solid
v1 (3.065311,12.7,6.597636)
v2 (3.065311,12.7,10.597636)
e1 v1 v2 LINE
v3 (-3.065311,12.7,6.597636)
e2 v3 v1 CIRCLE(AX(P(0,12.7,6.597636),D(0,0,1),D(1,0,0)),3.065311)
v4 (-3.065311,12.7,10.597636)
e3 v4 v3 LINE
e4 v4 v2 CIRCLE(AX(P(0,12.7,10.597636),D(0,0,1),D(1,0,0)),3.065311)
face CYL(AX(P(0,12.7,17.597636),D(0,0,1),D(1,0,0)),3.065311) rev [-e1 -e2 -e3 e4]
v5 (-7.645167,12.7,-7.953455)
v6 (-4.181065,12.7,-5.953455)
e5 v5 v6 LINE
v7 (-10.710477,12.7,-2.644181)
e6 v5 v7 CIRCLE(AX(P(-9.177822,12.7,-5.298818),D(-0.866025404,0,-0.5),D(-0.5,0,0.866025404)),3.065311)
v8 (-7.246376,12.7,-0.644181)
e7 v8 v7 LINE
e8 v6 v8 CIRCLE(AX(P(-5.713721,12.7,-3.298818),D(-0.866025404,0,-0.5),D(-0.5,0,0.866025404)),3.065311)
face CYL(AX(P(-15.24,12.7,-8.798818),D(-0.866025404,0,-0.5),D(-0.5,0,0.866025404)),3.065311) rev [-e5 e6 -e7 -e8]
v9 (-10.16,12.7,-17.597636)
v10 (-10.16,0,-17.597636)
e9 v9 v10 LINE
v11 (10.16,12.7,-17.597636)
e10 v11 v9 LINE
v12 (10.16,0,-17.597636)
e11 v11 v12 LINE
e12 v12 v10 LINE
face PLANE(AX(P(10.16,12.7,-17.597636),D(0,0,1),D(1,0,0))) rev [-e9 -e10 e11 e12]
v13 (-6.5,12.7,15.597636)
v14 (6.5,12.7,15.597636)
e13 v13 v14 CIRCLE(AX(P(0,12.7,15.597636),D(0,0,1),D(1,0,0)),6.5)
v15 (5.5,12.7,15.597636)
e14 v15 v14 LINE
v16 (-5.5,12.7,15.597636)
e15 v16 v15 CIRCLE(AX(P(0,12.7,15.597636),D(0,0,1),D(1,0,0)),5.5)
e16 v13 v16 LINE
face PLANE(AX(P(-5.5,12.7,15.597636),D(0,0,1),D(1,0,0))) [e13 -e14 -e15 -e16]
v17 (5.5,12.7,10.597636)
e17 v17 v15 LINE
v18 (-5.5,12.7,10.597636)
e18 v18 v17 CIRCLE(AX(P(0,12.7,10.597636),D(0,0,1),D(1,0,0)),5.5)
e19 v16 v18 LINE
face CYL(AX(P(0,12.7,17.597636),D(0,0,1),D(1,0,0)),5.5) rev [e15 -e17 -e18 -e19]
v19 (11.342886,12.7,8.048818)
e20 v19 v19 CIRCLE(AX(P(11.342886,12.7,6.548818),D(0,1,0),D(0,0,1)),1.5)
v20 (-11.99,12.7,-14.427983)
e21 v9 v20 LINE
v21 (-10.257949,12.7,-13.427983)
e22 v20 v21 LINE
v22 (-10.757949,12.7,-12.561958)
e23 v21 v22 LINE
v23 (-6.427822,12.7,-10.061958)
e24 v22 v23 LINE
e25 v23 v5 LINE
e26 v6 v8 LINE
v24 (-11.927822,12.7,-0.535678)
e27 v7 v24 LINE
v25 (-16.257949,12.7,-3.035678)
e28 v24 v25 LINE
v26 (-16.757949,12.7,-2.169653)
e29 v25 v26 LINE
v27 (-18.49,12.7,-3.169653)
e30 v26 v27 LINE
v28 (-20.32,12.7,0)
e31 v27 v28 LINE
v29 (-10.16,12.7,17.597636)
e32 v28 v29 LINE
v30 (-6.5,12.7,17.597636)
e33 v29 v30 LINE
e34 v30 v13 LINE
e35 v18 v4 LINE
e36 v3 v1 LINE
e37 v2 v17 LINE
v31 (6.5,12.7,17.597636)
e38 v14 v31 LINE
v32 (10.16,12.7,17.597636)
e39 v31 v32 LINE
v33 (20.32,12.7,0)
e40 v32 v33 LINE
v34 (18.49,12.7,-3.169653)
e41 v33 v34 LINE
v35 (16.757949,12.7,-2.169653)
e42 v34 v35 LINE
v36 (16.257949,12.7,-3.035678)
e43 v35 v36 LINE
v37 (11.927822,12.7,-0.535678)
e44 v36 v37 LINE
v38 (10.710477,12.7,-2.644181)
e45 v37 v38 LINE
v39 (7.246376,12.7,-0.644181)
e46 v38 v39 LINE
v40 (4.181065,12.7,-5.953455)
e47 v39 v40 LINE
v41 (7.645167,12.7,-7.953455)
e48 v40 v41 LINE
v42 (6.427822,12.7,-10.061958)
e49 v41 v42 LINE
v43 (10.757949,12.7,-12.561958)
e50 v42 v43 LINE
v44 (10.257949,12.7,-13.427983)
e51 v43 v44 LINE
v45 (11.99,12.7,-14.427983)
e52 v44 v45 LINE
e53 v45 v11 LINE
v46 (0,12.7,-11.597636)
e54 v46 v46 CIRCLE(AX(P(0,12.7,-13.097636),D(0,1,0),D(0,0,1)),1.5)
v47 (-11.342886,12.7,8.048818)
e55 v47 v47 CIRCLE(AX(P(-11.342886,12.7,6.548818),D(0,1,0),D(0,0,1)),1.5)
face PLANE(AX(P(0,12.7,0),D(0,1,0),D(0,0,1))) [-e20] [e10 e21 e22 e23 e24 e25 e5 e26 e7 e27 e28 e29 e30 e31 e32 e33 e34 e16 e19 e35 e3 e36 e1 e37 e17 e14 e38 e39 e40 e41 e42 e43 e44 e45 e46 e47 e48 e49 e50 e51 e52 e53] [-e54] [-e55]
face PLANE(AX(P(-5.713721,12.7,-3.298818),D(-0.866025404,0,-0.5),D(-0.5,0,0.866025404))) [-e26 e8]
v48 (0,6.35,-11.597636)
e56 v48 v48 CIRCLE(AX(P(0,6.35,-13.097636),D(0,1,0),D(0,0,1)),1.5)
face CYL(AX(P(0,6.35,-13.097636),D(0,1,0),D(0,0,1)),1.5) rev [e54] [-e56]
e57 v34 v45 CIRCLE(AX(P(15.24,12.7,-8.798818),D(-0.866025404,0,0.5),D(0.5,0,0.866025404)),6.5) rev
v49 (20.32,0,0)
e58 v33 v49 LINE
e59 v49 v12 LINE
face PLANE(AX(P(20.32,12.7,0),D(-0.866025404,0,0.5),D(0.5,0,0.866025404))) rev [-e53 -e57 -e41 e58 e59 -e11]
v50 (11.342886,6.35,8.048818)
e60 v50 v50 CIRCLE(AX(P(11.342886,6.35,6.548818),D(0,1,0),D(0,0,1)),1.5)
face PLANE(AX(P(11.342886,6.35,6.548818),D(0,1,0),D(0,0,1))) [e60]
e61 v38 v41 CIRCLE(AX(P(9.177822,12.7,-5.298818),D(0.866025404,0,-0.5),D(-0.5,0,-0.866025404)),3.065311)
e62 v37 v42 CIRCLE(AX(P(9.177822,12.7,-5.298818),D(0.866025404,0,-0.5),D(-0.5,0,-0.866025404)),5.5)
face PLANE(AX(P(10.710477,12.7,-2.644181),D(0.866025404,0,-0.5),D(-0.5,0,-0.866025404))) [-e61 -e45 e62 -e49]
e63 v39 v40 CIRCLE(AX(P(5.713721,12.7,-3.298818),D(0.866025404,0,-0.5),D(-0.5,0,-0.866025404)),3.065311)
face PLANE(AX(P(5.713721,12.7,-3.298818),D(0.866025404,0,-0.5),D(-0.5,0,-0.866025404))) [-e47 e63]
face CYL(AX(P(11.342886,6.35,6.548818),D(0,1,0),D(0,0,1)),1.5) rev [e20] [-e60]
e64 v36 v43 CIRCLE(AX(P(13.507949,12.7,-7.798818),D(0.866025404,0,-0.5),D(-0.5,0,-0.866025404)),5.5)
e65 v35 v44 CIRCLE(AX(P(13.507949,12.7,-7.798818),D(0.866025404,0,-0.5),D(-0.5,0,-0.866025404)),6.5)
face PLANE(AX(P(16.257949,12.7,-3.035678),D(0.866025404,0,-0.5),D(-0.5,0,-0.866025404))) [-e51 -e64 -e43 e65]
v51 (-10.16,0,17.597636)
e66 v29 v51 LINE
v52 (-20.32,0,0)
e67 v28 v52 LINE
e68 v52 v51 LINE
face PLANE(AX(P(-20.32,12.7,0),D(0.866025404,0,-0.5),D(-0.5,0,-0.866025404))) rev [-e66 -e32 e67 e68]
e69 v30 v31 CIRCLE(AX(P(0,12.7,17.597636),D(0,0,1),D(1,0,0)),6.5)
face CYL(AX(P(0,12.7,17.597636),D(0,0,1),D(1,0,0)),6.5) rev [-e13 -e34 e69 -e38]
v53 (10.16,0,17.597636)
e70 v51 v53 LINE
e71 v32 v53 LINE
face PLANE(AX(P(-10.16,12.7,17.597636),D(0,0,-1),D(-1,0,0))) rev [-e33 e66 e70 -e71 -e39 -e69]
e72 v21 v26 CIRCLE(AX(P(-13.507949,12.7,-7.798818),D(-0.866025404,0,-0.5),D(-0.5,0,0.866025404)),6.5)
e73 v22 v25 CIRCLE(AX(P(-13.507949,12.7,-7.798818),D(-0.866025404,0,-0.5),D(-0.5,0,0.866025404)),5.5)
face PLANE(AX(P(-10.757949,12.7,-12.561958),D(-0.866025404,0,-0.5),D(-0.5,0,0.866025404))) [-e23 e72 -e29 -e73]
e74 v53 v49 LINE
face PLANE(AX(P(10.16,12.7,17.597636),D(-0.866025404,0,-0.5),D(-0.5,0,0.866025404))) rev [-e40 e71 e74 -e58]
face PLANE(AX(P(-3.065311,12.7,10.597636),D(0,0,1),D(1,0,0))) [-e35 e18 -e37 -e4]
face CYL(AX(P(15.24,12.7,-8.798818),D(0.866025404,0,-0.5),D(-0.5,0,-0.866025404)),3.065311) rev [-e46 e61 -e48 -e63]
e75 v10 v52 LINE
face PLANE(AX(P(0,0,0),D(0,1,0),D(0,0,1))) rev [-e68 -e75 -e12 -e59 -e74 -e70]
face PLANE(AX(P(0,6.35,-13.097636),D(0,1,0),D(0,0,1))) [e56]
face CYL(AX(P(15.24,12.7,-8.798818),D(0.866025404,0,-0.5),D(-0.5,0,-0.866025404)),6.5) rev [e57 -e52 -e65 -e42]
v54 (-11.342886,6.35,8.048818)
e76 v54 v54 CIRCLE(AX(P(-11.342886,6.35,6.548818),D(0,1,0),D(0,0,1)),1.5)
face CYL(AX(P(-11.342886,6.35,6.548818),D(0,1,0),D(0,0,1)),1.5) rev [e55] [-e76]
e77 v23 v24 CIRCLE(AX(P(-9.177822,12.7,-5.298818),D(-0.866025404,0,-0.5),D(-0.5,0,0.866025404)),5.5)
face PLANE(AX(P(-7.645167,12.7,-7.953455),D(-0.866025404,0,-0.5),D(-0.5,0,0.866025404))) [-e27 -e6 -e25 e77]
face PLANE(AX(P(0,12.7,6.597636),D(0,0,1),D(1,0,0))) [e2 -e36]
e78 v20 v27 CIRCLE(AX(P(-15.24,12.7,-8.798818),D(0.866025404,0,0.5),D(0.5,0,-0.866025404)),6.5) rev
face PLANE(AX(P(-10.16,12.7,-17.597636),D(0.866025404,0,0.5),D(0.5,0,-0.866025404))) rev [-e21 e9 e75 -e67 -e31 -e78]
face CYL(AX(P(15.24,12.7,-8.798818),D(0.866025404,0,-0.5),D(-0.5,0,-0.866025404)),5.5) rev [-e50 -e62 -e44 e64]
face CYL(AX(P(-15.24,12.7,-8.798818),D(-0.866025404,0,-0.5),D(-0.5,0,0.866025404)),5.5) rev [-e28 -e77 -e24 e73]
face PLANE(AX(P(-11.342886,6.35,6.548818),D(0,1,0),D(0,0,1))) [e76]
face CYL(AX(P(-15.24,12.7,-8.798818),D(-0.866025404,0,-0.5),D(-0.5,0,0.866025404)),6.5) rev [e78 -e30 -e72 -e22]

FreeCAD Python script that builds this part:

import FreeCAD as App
import Part
import Sketcher

V = App.Vector
Q = App.Units.Quantity

doc = App.newDocument("Part")
body = doc.addObject("PartDesign::Body", "Body")

sketch1 = body.newObject("Sketcher::SketchObject", "Sketch")
sketch1.AttachmentSupport = (doc.getObject("XZ_Plane"), [""])
sketch1.MapMode = "FlatFace"
sketch1.addGeometry([
    Part.LineSegment(V(10, 18, 0), V(20, 0, 0)),
    Part.LineSegment(V(20, 0, 0), V(10, -18, 0)),
    Part.LineSegment(V(10, -18, 0), V(-10, -18, 0)),
    Part.LineSegment(V(-10, -18, 0), V(-20, 0, 0)),
    Part.LineSegment(V(-20, 0, 0), V(-10, 18, 0)),
    Part.LineSegment(V(-10, 18, 0), V(10, 18, 0)),
], False)
sketch1.addConstraint([
    Sketcher.Constraint("Coincident", 0, 2, 1, 1),
    Sketcher.Constraint("Coincident", 1, 2, 2, 1),
    Sketcher.Constraint("Coincident", 2, 2, 3, 1),
    Sketcher.Constraint("Coincident", 3, 2, 4, 1),
    Sketcher.Constraint("Coincident", 4, 2, 5, 1),
    Sketcher.Constraint("Coincident", 5, 2, 0, 1),
    Sketcher.Constraint("Horizontal", 2),
    Sketcher.Constraint("Horizontal", 5),
    Sketcher.Constraint("Symmetric", 0, 2, 3, 2, -1, 1),
    Sketcher.Constraint("Symmetric", 1, 2, 4, 2, -1, 1),
    Sketcher.Constraint("PointOnObject", 0, 2, -1),
    Sketcher.Constraint("Parallel", 0, 3),
    Sketcher.Constraint("Vertical", 2, 2, 4, 2),
    Sketcher.Constraint("Angle", 0, Q("-60 deg")),
    Sketcher.Constraint("DistanceX", 2, 2, 2, 1, Q("20.32 mm")),
    Sketcher.Constraint("Distance", 0, Q("20.32 mm")),
])
pad1 = body.newObject("PartDesign::Pad", "Pad")
pad1.Profile = sketch1
pad1.Length = 12.7
pad1.Reversed = True

sketch2 = body.newObject("Sketcher::SketchObject", "Sketch001")
sketch2.AttachmentSupport = (doc.getObject("XZ_Plane"), [""])
sketch2.MapMode = "FlatFace"
sketch2.AttachmentOffset = App.Placement(V(0, 0, -12.7), App.Rotation())
sketch2.addGeometry([
    Part.LineSegment(V(0, 17.6, 0), V(0, 6.6, 0)),
    Part.LineSegment(V(0, 6.6, 0), V(-3.1, 6.6, 0)),
    Part.LineSegment(V(-3.1, 6.6, 0), V(-3.1, 10.6, 0)),
    Part.LineSegment(V(-3.1, 10.6, 0), V(-5.5, 10.6, 0)),
    Part.LineSegment(V(-5.5, 10.6, 0), V(-5.5, 15.6, 0)),
    Part.LineSegment(V(-5.5, 15.6, 0), V(-6.5, 15.6, 0)),
    Part.LineSegment(V(-6.5, 15.6, 0), V(-6.5, 17.6, 0)),
    Part.LineSegment(V(-6.5, 17.6, 0), V(0, 17.6, 0)),
], False)
sketch2.addConstraint([
    Sketcher.Constraint("Coincident", 0, 2, 1, 1),
    Sketcher.Constraint("Coincident", 1, 2, 2, 1),
    Sketcher.Constraint("Coincident", 2, 2, 3, 1),
    Sketcher.Constraint("Coincident", 3, 2, 4, 1),
    Sketcher.Constraint("Coincident", 4, 2, 5, 1),
    Sketcher.Constraint("Coincident", 5, 2, 6, 1),
    Sketcher.Constraint("Coincident", 6, 2, 7, 1),
    Sketcher.Constraint("Coincident", 7, 2, 0, 1),
    Sketcher.Constraint("Vertical", 0),
    Sketcher.Constraint("Horizontal", 1),
    Sketcher.Constraint("Vertical", 2),
    Sketcher.Constraint("Horizontal", 3),
    Sketcher.Constraint("Vertical", 4),
    Sketcher.Constraint("Horizontal", 5),
    Sketcher.Constraint("Vertical", 6),
    Sketcher.Constraint("Horizontal", 7),
    Sketcher.Constraint("PointOnObject", 0, 2, -2),
    Sketcher.Constraint("DistanceX", 5, 2, 5, 1, Q("1 mm")),
    Sketcher.Constraint("DistanceY", 0, 2, 0, 1, Q("11 mm")),
    Sketcher.Constraint("DistanceY", 2, 1, 2, 2, Q("4 mm")),
    Sketcher.Constraint("DistanceY", 4, 1, 4, 2, Q("5 mm")),
    Sketcher.Constraint("DistanceX", 7, 1, 7, 2, Q("6.5 mm")),
    Sketcher.Constraint("DistanceX", 1, 2, 1, 1, Q("3.065311 mm")),
    Sketcher.Constraint("DistanceY", -1, 1, 0, 2, Q("6.597636 mm")),
])
groove = body.newObject("PartDesign::Groove", "Groove")
groove.Profile = sketch2
groove.ReferenceAxis = (sketch2, ["V_Axis"])
groove.Angle = 360
doc.recompute()

polarpattern = body.newObject("PartDesign::PolarPattern", "PolarPattern")
polarpattern.Originals = [groove]
polarpattern.Axis = (doc.getObject("Y_Axis"), [""])
polarpattern.Angle = 360
polarpattern.Occurrences = 3
body.Tip = polarpattern

sketch3 = body.newObject("Sketcher::SketchObject", "Sketch002")
sketch3.AttachmentSupport = (doc.getObject("XZ_Plane"), [""])
sketch3.MapMode = "FlatFace"
sketch3.AttachmentOffset = App.Placement(V(0, 0, -12.7), App.Rotation())
sketch3.addGeometry([
    Part.Circle(V(0, -13.1, 0), V(0, 0, 1), 1.5),
    Part.Circle(V(11.3, 6.5, 0), V(0, 0, 1), 1.5),
    Part.Circle(V(-11.3, 6.5, 0), V(0, 0, 1), 1.5),
], False)
sketch3.addConstraint([
    Sketcher.Constraint("Equal", 0, 1),
    Sketcher.Constraint("Equal", 1, 2),
    Sketcher.Constraint("Symmetric", 1, 3, 2, 3, -2),
    Sketcher.Constraint("PointOnObject", 0, 3, -2),
    Sketcher.Constraint("Diameter", 0, Q("3 mm")),
    Sketcher.Constraint("DistanceY", -1, 1, 1, 3, Q("6.548818 mm")),
    Sketcher.Constraint("DistanceX", 2, 3, 1, 3, Q("22.685771 mm")),
    Sketcher.Constraint("DistanceY", 0, 3, -1, 1, Q("13.097636 mm")),
])
pocket1 = body.newObject("PartDesign::Pocket", "Pocket")
pocket1.Profile = sketch3
pocket1.Length = 6.35
pocket1.Reversed = True

doc.recompute()
